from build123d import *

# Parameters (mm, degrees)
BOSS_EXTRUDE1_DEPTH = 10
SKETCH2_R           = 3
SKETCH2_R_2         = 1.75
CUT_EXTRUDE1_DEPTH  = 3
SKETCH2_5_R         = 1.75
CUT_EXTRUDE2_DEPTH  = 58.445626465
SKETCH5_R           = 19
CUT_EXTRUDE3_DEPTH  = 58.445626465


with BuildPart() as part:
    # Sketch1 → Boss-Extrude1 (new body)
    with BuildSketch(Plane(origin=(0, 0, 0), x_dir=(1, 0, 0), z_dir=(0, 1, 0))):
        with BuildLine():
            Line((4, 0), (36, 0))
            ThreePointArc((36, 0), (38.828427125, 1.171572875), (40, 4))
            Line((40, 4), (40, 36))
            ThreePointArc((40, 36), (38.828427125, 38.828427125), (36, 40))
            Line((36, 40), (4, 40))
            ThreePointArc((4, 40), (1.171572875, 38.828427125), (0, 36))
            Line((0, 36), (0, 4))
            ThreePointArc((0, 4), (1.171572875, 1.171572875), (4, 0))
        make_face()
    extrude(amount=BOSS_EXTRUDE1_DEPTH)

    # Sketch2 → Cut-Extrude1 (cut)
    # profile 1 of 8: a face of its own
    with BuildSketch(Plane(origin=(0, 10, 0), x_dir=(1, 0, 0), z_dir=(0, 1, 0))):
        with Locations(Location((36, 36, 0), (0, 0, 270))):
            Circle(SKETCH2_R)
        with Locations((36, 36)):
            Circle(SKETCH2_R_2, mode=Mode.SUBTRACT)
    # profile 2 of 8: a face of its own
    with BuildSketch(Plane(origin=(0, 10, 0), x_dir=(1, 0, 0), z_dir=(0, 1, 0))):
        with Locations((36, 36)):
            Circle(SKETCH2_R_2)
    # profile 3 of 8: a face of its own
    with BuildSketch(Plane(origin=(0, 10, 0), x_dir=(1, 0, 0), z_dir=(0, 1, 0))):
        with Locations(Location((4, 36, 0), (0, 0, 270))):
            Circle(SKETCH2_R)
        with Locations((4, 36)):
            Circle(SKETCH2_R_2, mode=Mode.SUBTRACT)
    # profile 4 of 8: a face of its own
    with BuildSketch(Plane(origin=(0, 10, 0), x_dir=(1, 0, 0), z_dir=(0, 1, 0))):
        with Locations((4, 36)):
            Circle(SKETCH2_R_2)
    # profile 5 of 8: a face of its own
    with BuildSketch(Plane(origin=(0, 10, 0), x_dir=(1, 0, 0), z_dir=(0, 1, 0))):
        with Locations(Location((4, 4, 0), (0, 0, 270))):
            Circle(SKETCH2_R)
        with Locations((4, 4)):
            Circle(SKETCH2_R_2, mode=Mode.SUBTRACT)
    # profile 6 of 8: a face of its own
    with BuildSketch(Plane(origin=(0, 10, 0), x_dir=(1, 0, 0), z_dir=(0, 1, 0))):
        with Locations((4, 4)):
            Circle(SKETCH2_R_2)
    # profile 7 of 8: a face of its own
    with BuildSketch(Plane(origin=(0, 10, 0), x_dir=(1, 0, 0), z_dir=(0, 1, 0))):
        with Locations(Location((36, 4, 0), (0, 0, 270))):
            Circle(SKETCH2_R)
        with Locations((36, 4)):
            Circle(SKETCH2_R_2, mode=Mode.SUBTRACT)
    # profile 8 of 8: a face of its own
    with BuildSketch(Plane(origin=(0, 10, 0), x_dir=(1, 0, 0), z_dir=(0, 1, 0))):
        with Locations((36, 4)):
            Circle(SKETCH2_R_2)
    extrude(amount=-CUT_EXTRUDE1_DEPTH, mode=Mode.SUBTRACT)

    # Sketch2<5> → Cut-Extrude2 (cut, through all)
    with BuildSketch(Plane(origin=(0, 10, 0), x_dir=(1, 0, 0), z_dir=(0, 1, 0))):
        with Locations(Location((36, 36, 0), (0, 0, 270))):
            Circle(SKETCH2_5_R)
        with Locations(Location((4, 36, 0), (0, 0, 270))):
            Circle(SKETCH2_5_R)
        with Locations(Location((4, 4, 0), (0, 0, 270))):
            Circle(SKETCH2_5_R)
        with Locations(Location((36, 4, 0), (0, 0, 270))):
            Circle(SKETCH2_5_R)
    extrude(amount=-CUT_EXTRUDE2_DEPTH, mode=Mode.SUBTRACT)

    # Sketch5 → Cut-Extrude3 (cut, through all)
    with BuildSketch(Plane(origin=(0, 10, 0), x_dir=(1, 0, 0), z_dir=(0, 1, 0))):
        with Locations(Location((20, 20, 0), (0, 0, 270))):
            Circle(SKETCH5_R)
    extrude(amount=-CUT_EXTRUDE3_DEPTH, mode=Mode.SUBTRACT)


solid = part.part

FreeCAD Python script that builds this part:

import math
import FreeCAD as App
import Part
import Sketcher
Q = App.Units.Quantity

doc = App.newDocument("Part")
body = doc.addObject("PartDesign::Body", "Body")

# Sketch on XZ plane
sketch1 = body.newObject("Sketcher::SketchObject", "Sketch")
sketch1.AttachmentSupport = (doc.getObject("XZ_Plane"), [""])
sketch1.MapMode = "FlatFace"
sketch1.addGeometry([
    Part.LineSegment(App.Vector(4, 0, 0), App.Vector(36, 0, 0)),  # 0
    Part.ArcOfCircle(Part.Circle(App.Vector(36, -4, 0), App.Vector(0, 0, 1), 4), math.radians(0), math.radians(90)),  # 1
    Part.LineSegment(App.Vector(40, -4, 0), App.Vector(40, -36, 0)),  # 2
    Part.ArcOfCircle(Part.Circle(App.Vector(36, -36, 0), App.Vector(0, 0, 1), 4), math.radians(-90), math.radians(0)),  # 3
    Part.LineSegment(App.Vector(36, -40, 0), App.Vector(4, -40, 0)),  # 4
    Part.ArcOfCircle(Part.Circle(App.Vector(4, -36, 0), App.Vector(0, 0, 1), 4), math.radians(180), math.radians(270)),  # 5
    Part.LineSegment(App.Vector(0, -36, 0), App.Vector(0, -4, 0)),  # 6
    Part.ArcOfCircle(Part.Circle(App.Vector(4, -4, 0), App.Vector(0, 0, 1), 4), math.radians(90), math.radians(180)),  # 7
], False)
sketch1.addConstraint([
    Sketcher.Constraint("Tangent", 0, 2, 1, 2),
    Sketcher.Constraint("Tangent", 1, 1, 2, 1),
    Sketcher.Constraint("Tangent", 2, 2, 3, 2),
    Sketcher.Constraint("Tangent", 3, 1, 4, 1),
    Sketcher.Constraint("Tangent", 4, 2, 5, 2),
    Sketcher.Constraint("Tangent", 5, 1, 6, 1),
    Sketcher.Constraint("Tangent", 6, 2, 7, 2),
    Sketcher.Constraint("Tangent", 7, 1, 0, 1),
    Sketcher.Constraint("Horizontal", 0),
    Sketcher.Constraint("Vertical", 2),
    Sketcher.Constraint("Horizontal", 4),
    Sketcher.Constraint("Vertical", 6),
    Sketcher.Constraint("Equal", 1, 3),
    Sketcher.Constraint("Equal", 3, 5),
    Sketcher.Constraint("Equal", 5, 7),
    Sketcher.Constraint("PointOnObject", 0, 2, -1),
    Sketcher.Constraint("PointOnObject", 5, 1, -2),
    Sketcher.Constraint("Equal", 4, 2),
    Sketcher.Constraint("Radius", 1, Q("4 mm")),
    Sketcher.Constraint("DistanceX", 0, 1, 0, 2, Q("32 mm")),
])
pad1 = body.newObject("PartDesign::Pad", "Pad")
pad1.Profile = sketch1
pad1.Length = 10
pad1.Reversed = True

# Sketch on XZ plane
sketch2 = body.newObject("Sketcher::SketchObject", "Sketch001")
sketch2.AttachmentSupport = (doc.getObject("XZ_Plane"), [""])
sketch2.MapMode = "FlatFace"
sketch2.AttachmentOffset = App.Placement(App.Vector(0, 0, -10), App.Rotation())
sketch2.addGeometry([
    Part.Circle(App.Vector(36, -36, 0), App.Vector(0, 0, 1), 3),
    Part.Circle(App.Vector(4, -36, 0), App.Vector(0, 0, 1), 3),
    Part.Circle(App.Vector(4, -4, 0), App.Vector(0, 0, 1), 3),
    Part.Circle(App.Vector(36, -4, 0), App.Vector(0, 0, 1), 3),
], False)
sketch2.addConstraint([
    Sketcher.Constraint("Equal", 0, 1),
    Sketcher.Constraint("Equal", 1, 2),
    Sketcher.Constraint("Equal", 2, 3),
    Sketcher.Constraint("Horizontal", 0, 3, 1, 3),
    Sketcher.Constraint("Horizontal", 2, 3, 3, 3),
    Sketcher.Constraint("Vertical", 1, 3, 2, 3),
    Sketcher.Constraint("Vertical", 0, 3, 3, 3),
    Sketcher.Constraint("Diameter", 0, Q("6 mm")),
    Sketcher.Constraint("DistanceX", -1, 1, 0, 3, Q("36 mm")),
    Sketcher.Constraint("DistanceY", 0, 3, -1, 1, Q("36 mm")),
    Sketcher.Constraint("DistanceX", -1, 1, 1, 3, Q("4 mm")),
    Sketcher.Constraint("DistanceY", 2, 3, -1, 1, Q("4 mm")),
])
pocket1 = body.newObject("PartDesign::Pocket", "Pocket")
pocket1.Profile = sketch2
pocket1.Length = 3
pocket1.Reversed = True

# Sketch on XZ plane
sketch3 = body.newObject("Sketcher::SketchObject", "Sketch002")
sketch3.AttachmentSupport = (doc.getObject("XZ_Plane"), [""])
sketch3.MapMode = "FlatFace"
sketch3.AttachmentOffset = App.Placement(App.Vector(0, 0, -10), App.Rotation())
sketch3.addGeometry([
    Part.Circle(App.Vector(36, -36, 0), App.Vector(0, 0, 1), 1.8),
    Part.Circle(App.Vector(4, -36, 0), App.Vector(0, 0, 1), 1.8),
    Part.Circle(App.Vector(4, -4, 0), App.Vector(0, 0, 1), 1.8),
    Part.Circle(App.Vector(36, -4, 0), App.Vector(0, 0, 1), 1.8),
], False)
sketch3.addConstraint([
    Sketcher.Constraint("Equal", 0, 1),
    Sketcher.Constraint("Equal", 1, 2),
    Sketcher.Constraint("Equal", 2, 3),
    Sketcher.Constraint("Horizontal", 0, 3, 1, 3),
    Sketcher.Constraint("Horizontal", 2, 3, 3, 3),
    Sketcher.Constraint("Vertical", 1, 3, 2, 3),
    Sketcher.Constraint("Vertical", 0, 3, 3, 3),
    Sketcher.Constraint("Diameter", 0, Q("3.5 mm")),
    Sketcher.Constraint("DistanceX", -1, 1, 0, 3, Q("36 mm")),
    Sketcher.Constraint("DistanceY", 0, 3, -1, 1, Q("36 mm")),
    Sketcher.Constraint("DistanceX", -1, 1, 1, 3, Q("4 mm")),
    Sketcher.Constraint("DistanceY", 2, 3, -1, 1, Q("4 mm")),
])
pocket2 = body.newObject("PartDesign::Pocket", "Pocket001")
pocket2.Profile = sketch3
pocket2.Type = "ThroughAll"
pocket2.Reversed = True

# Sketch on XZ plane
sketch4 = body.newObject("Sketcher::SketchObject", "Sketch003")
sketch4.AttachmentSupport = (doc.getObject("XZ_Plane"), [""])
sketch4.MapMode = "FlatFace"
sketch4.AttachmentOffset = App.Placement(App.Vector(0, 0, -10), App.Rotation())
sketch4.addGeometry(Part.Circle(App.Vector(20, -20, 0), App.Vector(0, 0, 1), 19), False)
sketch4.addConstraint([
    Sketcher.Constraint("Diameter", 0, Q("38 mm")),
    Sketcher.Constraint("DistanceX", -1, 1, 0, 3, Q("20 mm")),
    Sketcher.Constraint("DistanceY", 0, 3, -1, 1, Q("20 mm")),
])
pocket3 = body.newObject("PartDesign::Pocket", "Pocket002")
pocket3.Profile = sketch4
pocket3.Type = "ThroughAll"
pocket3.Reversed = True

doc.recompute()
